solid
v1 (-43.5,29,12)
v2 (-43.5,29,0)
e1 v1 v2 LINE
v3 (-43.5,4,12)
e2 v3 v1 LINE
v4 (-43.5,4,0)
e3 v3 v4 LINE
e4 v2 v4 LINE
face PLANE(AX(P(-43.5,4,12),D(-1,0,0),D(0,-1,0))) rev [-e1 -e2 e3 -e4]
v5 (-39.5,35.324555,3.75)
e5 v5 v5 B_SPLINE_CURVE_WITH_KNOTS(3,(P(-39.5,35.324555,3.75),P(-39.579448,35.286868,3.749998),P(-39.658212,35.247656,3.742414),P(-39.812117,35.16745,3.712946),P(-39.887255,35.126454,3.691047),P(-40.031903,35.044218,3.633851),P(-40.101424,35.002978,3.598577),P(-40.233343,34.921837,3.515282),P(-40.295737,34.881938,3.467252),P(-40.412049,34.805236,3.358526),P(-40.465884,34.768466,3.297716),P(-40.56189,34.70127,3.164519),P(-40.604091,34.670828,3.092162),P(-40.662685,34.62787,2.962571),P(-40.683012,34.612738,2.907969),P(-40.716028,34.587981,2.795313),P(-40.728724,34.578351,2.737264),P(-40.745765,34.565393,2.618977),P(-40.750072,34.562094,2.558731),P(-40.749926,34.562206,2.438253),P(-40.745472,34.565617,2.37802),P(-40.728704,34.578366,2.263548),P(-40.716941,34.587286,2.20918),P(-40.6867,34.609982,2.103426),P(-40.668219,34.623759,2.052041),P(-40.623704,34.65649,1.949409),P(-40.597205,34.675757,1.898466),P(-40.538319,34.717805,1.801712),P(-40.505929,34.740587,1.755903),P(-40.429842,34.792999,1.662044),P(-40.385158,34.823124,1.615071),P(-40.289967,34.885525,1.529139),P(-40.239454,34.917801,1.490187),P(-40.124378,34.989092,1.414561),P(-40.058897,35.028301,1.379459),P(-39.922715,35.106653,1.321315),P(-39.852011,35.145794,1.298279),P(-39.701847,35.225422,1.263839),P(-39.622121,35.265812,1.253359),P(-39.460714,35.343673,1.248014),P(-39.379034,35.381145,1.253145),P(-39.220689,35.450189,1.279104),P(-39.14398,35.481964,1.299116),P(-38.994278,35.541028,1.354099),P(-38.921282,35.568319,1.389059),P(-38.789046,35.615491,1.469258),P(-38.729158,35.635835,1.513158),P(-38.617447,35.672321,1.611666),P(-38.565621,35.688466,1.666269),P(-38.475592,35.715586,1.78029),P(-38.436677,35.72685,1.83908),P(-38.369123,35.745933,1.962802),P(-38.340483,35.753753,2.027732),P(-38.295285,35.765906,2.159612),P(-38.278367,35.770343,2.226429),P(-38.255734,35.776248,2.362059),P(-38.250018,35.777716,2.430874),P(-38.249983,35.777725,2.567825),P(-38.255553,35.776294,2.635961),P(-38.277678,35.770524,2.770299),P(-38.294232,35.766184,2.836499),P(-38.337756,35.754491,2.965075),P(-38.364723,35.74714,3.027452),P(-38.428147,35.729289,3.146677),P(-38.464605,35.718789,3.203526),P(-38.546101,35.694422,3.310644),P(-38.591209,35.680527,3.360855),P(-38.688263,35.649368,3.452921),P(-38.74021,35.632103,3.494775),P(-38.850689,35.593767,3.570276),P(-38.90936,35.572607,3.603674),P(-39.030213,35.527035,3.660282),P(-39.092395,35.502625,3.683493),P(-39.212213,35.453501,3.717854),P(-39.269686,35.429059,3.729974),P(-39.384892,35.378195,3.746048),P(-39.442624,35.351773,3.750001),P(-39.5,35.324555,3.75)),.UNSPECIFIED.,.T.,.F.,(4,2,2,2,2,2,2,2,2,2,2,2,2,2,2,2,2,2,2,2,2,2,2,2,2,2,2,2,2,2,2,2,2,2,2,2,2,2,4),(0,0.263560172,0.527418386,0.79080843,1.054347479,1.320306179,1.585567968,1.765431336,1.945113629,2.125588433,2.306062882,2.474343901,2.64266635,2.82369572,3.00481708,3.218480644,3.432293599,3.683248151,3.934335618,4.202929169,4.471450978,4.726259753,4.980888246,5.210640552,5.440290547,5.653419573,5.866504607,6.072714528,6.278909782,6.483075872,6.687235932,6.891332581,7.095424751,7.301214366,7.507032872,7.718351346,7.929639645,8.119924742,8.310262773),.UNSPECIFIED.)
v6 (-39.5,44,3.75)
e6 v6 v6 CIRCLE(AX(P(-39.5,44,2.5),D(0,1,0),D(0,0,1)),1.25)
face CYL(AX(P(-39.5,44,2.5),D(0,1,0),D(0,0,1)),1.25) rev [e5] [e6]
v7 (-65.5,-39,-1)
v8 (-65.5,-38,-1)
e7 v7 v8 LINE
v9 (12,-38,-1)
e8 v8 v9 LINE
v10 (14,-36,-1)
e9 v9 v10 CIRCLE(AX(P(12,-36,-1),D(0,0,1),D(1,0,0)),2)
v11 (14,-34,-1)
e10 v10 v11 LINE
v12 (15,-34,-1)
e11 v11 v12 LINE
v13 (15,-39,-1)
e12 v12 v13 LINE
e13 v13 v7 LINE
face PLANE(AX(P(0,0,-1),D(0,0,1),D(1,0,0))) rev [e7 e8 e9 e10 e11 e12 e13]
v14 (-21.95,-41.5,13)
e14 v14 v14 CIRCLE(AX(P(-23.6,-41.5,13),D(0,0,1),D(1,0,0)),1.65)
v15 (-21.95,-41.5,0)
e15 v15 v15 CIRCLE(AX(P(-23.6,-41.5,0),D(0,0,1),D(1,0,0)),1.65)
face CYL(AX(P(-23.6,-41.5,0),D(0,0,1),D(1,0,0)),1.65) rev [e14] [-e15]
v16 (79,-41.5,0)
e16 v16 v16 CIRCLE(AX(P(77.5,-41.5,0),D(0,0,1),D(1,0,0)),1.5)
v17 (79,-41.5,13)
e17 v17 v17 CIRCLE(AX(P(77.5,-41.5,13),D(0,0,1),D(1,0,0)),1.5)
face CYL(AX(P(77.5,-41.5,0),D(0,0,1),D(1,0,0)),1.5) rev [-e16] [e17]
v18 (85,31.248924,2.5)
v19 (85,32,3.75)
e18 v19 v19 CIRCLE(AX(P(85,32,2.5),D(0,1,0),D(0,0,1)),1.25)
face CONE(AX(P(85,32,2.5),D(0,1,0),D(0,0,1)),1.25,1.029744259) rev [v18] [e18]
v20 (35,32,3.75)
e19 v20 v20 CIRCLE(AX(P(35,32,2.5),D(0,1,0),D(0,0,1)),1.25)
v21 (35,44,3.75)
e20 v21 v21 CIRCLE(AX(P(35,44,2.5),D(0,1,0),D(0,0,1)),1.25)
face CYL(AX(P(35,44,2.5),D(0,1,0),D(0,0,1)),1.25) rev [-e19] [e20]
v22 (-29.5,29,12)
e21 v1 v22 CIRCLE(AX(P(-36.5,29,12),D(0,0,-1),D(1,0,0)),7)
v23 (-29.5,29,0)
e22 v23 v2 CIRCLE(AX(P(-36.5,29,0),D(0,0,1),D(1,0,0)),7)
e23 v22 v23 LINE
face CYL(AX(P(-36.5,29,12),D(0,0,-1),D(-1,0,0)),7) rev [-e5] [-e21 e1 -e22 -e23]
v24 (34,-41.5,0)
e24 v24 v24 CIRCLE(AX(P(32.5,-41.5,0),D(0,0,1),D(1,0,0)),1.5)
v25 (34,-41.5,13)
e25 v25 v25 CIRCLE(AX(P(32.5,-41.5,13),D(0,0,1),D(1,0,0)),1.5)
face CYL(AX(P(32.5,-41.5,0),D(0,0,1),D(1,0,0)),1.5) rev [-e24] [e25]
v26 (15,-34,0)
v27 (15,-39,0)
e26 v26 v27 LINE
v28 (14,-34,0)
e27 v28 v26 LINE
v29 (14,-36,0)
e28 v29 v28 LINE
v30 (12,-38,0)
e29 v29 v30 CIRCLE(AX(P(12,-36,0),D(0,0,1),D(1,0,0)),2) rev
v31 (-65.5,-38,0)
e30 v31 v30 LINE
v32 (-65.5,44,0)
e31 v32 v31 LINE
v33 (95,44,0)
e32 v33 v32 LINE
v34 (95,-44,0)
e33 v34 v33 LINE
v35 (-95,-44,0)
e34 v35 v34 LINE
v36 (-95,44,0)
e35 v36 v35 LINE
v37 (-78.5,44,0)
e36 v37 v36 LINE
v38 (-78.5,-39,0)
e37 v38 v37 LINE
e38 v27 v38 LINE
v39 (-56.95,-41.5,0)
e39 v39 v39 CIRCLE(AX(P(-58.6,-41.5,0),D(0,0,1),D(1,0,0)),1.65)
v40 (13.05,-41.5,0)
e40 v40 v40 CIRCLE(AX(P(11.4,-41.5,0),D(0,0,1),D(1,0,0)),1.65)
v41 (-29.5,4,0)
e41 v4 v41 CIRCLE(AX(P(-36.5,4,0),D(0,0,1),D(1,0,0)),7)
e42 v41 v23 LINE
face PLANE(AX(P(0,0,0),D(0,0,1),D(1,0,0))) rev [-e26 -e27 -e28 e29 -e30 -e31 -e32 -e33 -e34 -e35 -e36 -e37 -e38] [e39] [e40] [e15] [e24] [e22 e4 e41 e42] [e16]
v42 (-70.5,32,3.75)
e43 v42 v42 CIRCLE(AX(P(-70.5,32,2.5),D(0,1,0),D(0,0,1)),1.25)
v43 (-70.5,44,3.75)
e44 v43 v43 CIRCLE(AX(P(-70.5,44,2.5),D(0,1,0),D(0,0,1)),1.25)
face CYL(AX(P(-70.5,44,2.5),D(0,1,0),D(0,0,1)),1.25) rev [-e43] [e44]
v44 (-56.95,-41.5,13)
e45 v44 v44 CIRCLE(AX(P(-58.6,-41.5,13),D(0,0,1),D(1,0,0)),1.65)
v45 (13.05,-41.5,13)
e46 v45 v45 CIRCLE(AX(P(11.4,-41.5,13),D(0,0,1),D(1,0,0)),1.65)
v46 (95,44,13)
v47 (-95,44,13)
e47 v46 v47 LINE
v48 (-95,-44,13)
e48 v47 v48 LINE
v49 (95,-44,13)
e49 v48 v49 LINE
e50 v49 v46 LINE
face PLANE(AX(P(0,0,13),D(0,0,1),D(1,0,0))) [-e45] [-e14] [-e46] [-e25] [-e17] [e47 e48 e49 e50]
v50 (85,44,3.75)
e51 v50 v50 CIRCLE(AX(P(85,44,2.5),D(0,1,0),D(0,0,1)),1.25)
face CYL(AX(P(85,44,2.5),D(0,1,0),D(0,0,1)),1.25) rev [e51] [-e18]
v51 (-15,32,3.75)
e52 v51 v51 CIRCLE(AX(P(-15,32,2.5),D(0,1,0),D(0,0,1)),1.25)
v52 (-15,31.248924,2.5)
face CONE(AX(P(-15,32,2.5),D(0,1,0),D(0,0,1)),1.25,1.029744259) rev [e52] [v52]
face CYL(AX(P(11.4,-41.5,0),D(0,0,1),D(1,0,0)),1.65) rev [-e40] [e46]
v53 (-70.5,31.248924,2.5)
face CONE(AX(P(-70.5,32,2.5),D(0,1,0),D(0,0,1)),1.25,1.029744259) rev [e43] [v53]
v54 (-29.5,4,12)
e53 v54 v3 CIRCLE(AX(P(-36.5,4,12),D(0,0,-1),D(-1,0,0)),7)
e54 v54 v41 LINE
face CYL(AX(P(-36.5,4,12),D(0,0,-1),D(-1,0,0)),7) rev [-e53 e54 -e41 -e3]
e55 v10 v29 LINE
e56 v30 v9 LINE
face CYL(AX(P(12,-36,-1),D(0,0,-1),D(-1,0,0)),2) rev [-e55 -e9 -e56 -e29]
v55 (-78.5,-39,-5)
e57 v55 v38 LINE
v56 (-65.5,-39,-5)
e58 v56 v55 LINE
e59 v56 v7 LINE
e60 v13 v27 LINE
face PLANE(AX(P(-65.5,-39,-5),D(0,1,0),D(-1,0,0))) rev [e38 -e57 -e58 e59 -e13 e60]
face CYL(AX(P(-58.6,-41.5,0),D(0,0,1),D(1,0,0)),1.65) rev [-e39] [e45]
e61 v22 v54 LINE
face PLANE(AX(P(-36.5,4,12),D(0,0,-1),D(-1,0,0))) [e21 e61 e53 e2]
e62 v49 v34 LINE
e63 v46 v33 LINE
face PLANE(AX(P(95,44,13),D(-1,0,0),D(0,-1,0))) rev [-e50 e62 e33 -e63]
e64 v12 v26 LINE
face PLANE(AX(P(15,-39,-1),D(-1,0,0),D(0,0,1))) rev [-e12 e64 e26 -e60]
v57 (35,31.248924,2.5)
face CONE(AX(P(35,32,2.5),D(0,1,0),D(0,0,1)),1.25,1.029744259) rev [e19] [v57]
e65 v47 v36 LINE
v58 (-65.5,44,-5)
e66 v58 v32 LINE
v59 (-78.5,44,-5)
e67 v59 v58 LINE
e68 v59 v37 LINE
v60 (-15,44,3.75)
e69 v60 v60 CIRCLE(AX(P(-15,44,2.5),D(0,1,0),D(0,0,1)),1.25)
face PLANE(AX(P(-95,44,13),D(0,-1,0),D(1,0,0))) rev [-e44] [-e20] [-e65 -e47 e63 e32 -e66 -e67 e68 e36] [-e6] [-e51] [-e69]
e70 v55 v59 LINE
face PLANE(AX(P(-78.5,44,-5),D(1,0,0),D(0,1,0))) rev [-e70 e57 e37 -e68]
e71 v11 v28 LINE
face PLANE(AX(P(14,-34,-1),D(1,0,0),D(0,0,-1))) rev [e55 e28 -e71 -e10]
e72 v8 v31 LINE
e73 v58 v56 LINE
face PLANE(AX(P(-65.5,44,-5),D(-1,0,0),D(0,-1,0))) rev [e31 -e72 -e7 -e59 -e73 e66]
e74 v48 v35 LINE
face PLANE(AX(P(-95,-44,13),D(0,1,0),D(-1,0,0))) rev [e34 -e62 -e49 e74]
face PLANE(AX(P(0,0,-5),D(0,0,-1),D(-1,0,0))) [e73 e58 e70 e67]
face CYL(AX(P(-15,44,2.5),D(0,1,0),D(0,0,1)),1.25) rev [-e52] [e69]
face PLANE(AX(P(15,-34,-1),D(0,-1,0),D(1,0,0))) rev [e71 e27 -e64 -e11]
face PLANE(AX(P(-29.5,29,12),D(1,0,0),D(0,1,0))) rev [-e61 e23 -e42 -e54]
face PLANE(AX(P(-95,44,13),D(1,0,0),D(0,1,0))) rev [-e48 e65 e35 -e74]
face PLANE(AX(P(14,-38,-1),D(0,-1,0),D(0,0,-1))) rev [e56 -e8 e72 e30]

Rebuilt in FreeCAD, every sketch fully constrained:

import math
import FreeCAD as App
import Part
import Sketcher


def edges_at(feature, points):
    """Names of the edges that pass closest to the given points."""
    edges = feature.Shape.Edges
    near = lambda p: min(range(len(edges)), key=lambda i: edges[i].distToShape(Part.Vertex(*p))[0])
    return sorted({f"Edge{near(p) + 1}" for p in points})

doc = App.newDocument("Part")
body = doc.addObject("PartDesign::Body", "Body")

sketch1 = doc.addObject("Sketcher::SketchObject", "Sketch")
body.addObject(sketch1)
sketch1.AttachmentSupport = (doc.XY_Plane, [""])
sketch1.MapMode = "FlatFace"
sketch1.addGeometry([
    Part.LineSegment(App.Vector(95, 44, 0), App.Vector(-95, 44, 0)),
    Part.LineSegment(App.Vector(-95, 44, 0), App.Vector(-95, -44, 0)),
    Part.LineSegment(App.Vector(-95, -44, 0), App.Vector(95, -44, 0)),
    Part.LineSegment(App.Vector(95, -44, 0), App.Vector(95, 44, 0)),
], False)
sketch1.addConstraint([
    Sketcher.Constraint("Coincident", 0, 2, 1, 1),
    Sketcher.Constraint("Coincident", 1, 2, 2, 1),
    Sketcher.Constraint("Coincident", 2, 2, 3, 1),
    Sketcher.Constraint("Coincident", 3, 2, 0, 1),
    Sketcher.Constraint("Horizontal", 0),
    Sketcher.Constraint("Vertical", 1),
    Sketcher.Constraint("Horizontal", 2),
    Sketcher.Constraint("Vertical", 3),
    Sketcher.Constraint("Symmetric", 0, 2, 2, 2, -1, 1),
    Sketcher.Constraint("DistanceX", 0, 2, 0, 1, 190.0),
    Sketcher.Constraint("DistanceY", 1, 2, 1, 1, 88.0),
])
pad1 = doc.addObject("PartDesign::Pad", "Pad")
body.addObject(pad1)
pad1.Profile = sketch1
pad1.Length = 13

sketch2 = doc.addObject("Sketcher::SketchObject", "Sketch001")
body.addObject(sketch2)
sketch2.AttachmentSupport = (doc.XY_Plane, [""])
sketch2.MapMode = "FlatFace"
sketch2.AttachmentOffset = App.Placement(App.Vector(0, 0, 13), App.Rotation())
sketch2.addGeometry([
    Part.Circle(App.Vector(-58.6, -41.5, 0), App.Vector(0, 0, 1), 1.6),
    Part.Circle(App.Vector(-23.6, -41.5, 0), App.Vector(0, 0, 1), 1.6),
    Part.Circle(App.Vector(11.4, -41.5, 0), App.Vector(0, 0, 1), 1.6),
    Part.Circle(App.Vector(32.5, -41.5, 0), App.Vector(0, 0, 1), 1.5),
    Part.Circle(App.Vector(77.5, -41.5, 0), App.Vector(0, 0, 1), 1.5),
], False)
sketch2.addConstraint([
    Sketcher.Constraint("Equal", 0, 1),
    Sketcher.Constraint("Equal", 1, 2),
    Sketcher.Constraint("Equal", 3, 4),
    Sketcher.Constraint("Horizontal", 0, 3, 1, 3),
    Sketcher.Constraint("Horizontal", 1, 3, 2, 3),
    Sketcher.Constraint("Horizontal", 2, 3, 3, 3),
    Sketcher.Constraint("Horizontal", 3, 3, 4, 3),
    Sketcher.Constraint("Diameter", 3, 3.0),
    Sketcher.Constraint("Diameter", 0, 3.3),
    Sketcher.Constraint("DistanceX", 0, 3, 1, 3, 35.0),
    Sketcher.Constraint("DistanceX", 1, 3, 2, 3, 35.0),
    Sketcher.Constraint("DistanceX", 3, 3, 4, 3, 45.0),
    Sketcher.Constraint("DistanceX", 0, 3, -1, 1, 58.6),
    Sketcher.Constraint("DistanceY", 0, 3, -1, 1, 41.5),
    Sketcher.Constraint("DistanceX", -1, 1, 3, 3, 32.5),
])
pocket1 = doc.addObject("PartDesign::Pocket", "Pocket")
body.addObject(pocket1)
pocket1.Profile = sketch2
pocket1.Type = "ThroughAll"

sketch3 = doc.addObject("Sketcher::SketchObject", "Sketch002")
body.addObject(sketch3)
sketch3.AttachmentSupport = (doc.XY_Plane, [""])
sketch3.MapMode = "FlatFace"
sketch3.addGeometry([
    Part.LineSegment(App.Vector(-66, 44, 0), App.Vector(-66, -39, 0)),
    Part.LineSegment(App.Vector(-66, -39, 0), App.Vector(-78, -39, 0)),
    Part.LineSegment(App.Vector(-78, -39, 0), App.Vector(-78, 44, 0)),
    Part.LineSegment(App.Vector(-78, 44, 0), App.Vector(-66, 44, 0)),
], False)
sketch3.addConstraint([
    Sketcher.Constraint("Coincident", 0, 2, 1, 1),
    Sketcher.Constraint("Coincident", 1, 2, 2, 1),
    Sketcher.Constraint("Coincident", 2, 2, 3, 1),
    Sketcher.Constraint("Coincident", 3, 2, 0, 1),
    Sketcher.Constraint("Vertical", 0),
    Sketcher.Constraint("Horizontal", 1),
    Sketcher.Constraint("Vertical", 2),
    Sketcher.Constraint("Horizontal", 3),
    Sketcher.Constraint("DistanceX", 1, 2, 1, 1, 13.0),
    Sketcher.Constraint("DistanceY", 0, 2, 0, 1, 83.0),
    Sketcher.Constraint("DistanceY", 0, 2, -1, 1, 39.0),
    Sketcher.Constraint("DistanceX", 0, 2, -1, 1, 65.5),
])
pad2 = doc.addObject("PartDesign::Pad", "Pad001")
body.addObject(pad2)
pad2.Profile = sketch3
pad2.Length = 5
pad2.Reversed = True

sketch4 = doc.addObject("Sketcher::SketchObject", "Sketch003")
body.addObject(sketch4)
sketch4.AttachmentSupport = (doc.XY_Plane, [""])
sketch4.MapMode = "FlatFace"
sketch4.addGeometry([
    Part.LineSegment(App.Vector(15, -39, 0), App.Vector(-65.5, -39, 0)),
    Part.LineSegment(App.Vector(-65.5, -39, 0), App.Vector(-65.5, -38, 0)),
    Part.LineSegment(App.Vector(-65.5, -38, 0), App.Vector(14, -38, 0)),
    Part.LineSegment(App.Vector(14, -38, 0), App.Vector(14, -34, 0)),
    Part.LineSegment(App.Vector(14, -34, 0), App.Vector(15, -34, 0)),
    Part.LineSegment(App.Vector(15, -34, 0), App.Vector(15, -39, 0)),
], False)
sketch4.addConstraint([
    Sketcher.Constraint("Coincident", 0, 2, 1, 1),
    Sketcher.Constraint("Coincident", 1, 2, 2, 1),
    Sketcher.Constraint("Coincident", 2, 2, 3, 1),
    Sketcher.Constraint("Coincident", 3, 2, 4, 1),
    Sketcher.Constraint("Coincident", 4, 2, 5, 1),
    Sketcher.Constraint("Coincident", 5, 2, 0, 1),
    Sketcher.Constraint("Horizontal", 0),
    Sketcher.Constraint("Vertical", 1),
    Sketcher.Constraint("Horizontal", 2),
    Sketcher.Constraint("Vertical", 3),
    Sketcher.Constraint("Horizontal", 4),
    Sketcher.Constraint("Vertical", 5),
    Sketcher.Constraint("Equal", 4, 1),
    Sketcher.Constraint("DistanceX", 4, 1, 4, 2, 1.0),
    Sketcher.Constraint("DistanceY", 3, 1, 3, 2, 4.0),
    Sketcher.Constraint("DistanceX", 0, 2, 0, 1, 80.5),
    Sketcher.Constraint("DistanceY", 0, 2, -1, 1, 39.0),
    Sketcher.Constraint("DistanceX", -1, 1, 2, 2, 14.0),
])
pad3 = doc.addObject("PartDesign::Pad", "Pad002")
body.addObject(pad3)
pad3.Profile = sketch4
pad3.Length = 1
pad3.Reversed = True
doc.recompute()

fillet = doc.addObject("PartDesign::Fillet", "Fillet")
body.addObject(fillet)
fillet.Base = (pad3, edges_at(pad3, [(14, -38, -0.5)]))
fillet.Radius = 2

sketch5 = doc.addObject("Sketcher::SketchObject", "Sketch004")
body.addObject(sketch5)
sketch5.AttachmentSupport = (doc.XZ_Plane, [""])
sketch5.MapMode = "FlatFace"
sketch5.AttachmentOffset = App.Placement(App.Vector(0, 0, -44), App.Rotation())
sketch5.addGeometry([
    Part.Circle(App.Vector(-70.5, 2.5, 0), App.Vector(0, 0, 1), 1.2),
    Part.Circle(App.Vector(-39.5, 2.5, 0), App.Vector(0, 0, 1), 1.2),
    Part.Circle(App.Vector(-15, 2.5, 0), App.Vector(0, 0, 1), 1.2),
    Part.Circle(App.Vector(35, 2.5, 0), App.Vector(0, 0, 1), 1.2),
    Part.Circle(App.Vector(85, 2.5, 0), App.Vector(0, 0, 1), 1.2),
], False)
sketch5.addConstraint([
    Sketcher.Constraint("Equal", 0, 1),
    Sketcher.Constraint("Equal", 1, 2),
    Sketcher.Constraint("Equal", 2, 3),
    Sketcher.Constraint("Equal", 3, 4),
    Sketcher.Constraint("Horizontal", 0, 3, 1, 3),
    Sketcher.Constraint("Horizontal", 1, 3, 2, 3),
    Sketcher.Constraint("Horizontal", 2, 3, 3, 3),
    Sketcher.Constraint("Horizontal", 3, 3, 4, 3),
    Sketcher.Constraint("Diameter", 0, 2.5),
    Sketcher.Constraint("DistanceX", 2, 3, -1, 1, 15.0),
    Sketcher.Constraint("DistanceX", -1, 1, 3, 3, 35.0),
    Sketcher.Constraint("DistanceX", -1, 1, 4, 3, 85.0),
    Sketcher.Constraint("DistanceX", 0, 3, 1, 3, 31.0),
    Sketcher.Constraint("DistanceX", 0, 3, -1, 1, 70.5),
    Sketcher.Constraint("DistanceY", -1, 1, 0, 3, 2.5),
])
doc.recompute()
hole = doc.addObject("PartDesign::Hole", "Hole")
body.addObject(hole)
hole.Profile = sketch5
hole.ThreadType = "None"
hole.Diameter = 2.5
hole.DepthType = "Dimension"
hole.Depth = 12
hole.DrillPoint = "Angled"
hole.DrillPointAngle = 118
hole.Reversed = True

sketch6 = doc.addObject("Sketcher::SketchObject", "Sketch005")
body.addObject(sketch6)
sketch6.AttachmentSupport = (doc.XY_Plane, [""])
sketch6.MapMode = "FlatFace"
sketch6.AttachmentOffset = App.Placement(App.Vector(0, 0, -5), App.Rotation())
sketch6.addGeometry([
    Part.LineSegment(App.Vector(-30, 29, 0), App.Vector(-30, 4, 0)),
    Part.ArcOfCircle(Part.Circle(App.Vector(-36, 4, 0), App.Vector(0, 0, 1), 7), math.radians(180), math.radians(360)),
    Part.LineSegment(App.Vector(-44, 4, 0), App.Vector(-44, 29, 0)),
    Part.ArcOfCircle(Part.Circle(App.Vector(-36, 29, 0), App.Vector(0, 0, 1), 7), math.radians(0), math.radians(180)),
], False)
sketch6.addConstraint([
    Sketcher.Constraint("Tangent", 0, 2, 1, 2),
    Sketcher.Constraint("Tangent", 1, 1, 2, 1),
    Sketcher.Constraint("Tangent", 2, 2, 3, 2),
    Sketcher.Constraint("Tangent", 3, 1, 0, 1),
    Sketcher.Constraint("Vertical", 0),
    Sketcher.Constraint("Vertical", 2),
    Sketcher.Constraint("Radius", 1, 7.0),
    Sketcher.Constraint("DistanceY", 0, 2, 0, 1, 25.0),
    Sketcher.Constraint("DistanceY", -1, 1, 1, 3, 4.0),
    Sketcher.Constraint("DistanceX", 1, 3, -1, 1, 36.5),
])
pocket2 = doc.addObject("PartDesign::Pocket", "Pocket001")
body.addObject(pocket2)
pocket2.Profile = sketch6
pocket2.Length = 17
pocket2.Reversed = True

doc.recompute()
